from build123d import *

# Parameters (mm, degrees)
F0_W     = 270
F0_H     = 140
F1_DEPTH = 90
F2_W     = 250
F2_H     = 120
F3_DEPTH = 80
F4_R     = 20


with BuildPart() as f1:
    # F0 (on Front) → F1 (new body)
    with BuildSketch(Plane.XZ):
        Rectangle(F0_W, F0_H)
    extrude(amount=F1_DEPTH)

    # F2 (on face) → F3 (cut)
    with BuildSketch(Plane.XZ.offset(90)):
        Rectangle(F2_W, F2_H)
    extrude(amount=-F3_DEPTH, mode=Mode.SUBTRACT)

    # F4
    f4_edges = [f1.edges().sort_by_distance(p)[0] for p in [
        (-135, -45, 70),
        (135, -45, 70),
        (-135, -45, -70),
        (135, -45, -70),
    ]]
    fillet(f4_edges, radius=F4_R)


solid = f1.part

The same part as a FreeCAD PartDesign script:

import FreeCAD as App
import Part
import Sketcher
Q = App.Units.Quantity


def edges_at(feature, points):
    """Names of the edges that pass closest to the given points."""
    edges = feature.Shape.Edges
    near = lambda p: min(range(len(edges)), key=lambda i: edges[i].distToShape(Part.Vertex(*p))[0])
    return sorted({f"Edge{near(p) + 1}" for p in points})

doc = App.newDocument("Part")
body = doc.addObject("PartDesign::Body", "Body")

# Sketch on XZ plane
sketch1 = body.newObject("Sketcher::SketchObject", "Sketch")
sketch1.AttachmentSupport = (doc.getObject("XZ_Plane"), [""])
sketch1.MapMode = "FlatFace"
sketch1.addGeometry(Part.LineSegment(App.Vector(-135, 70, 0), App.Vector(-135, -70, 0)), False)
sketch1.addGeometry(Part.LineSegment(App.Vector(-135, -70, 0), App.Vector(135, -70, 0)), False)
sketch1.addGeometry(Part.LineSegment(App.Vector(135, -70, 0), App.Vector(135, 70, 0)), False)
sketch1.addGeometry(Part.LineSegment(App.Vector(135, 70, 0), App.Vector(-135, 70, 0)), False)
sketch1.addConstraint(Sketcher.Constraint("Coincident", 0, 2, 1, 1))
sketch1.addConstraint(Sketcher.Constraint("Coincident", 1, 2, 2, 1))
sketch1.addConstraint(Sketcher.Constraint("Coincident", 2, 2, 3, 1))
sketch1.addConstraint(Sketcher.Constraint("Coincident", 3, 2, 0, 1))
sketch1.addConstraint(Sketcher.Constraint("Vertical", 0))
sketch1.addConstraint(Sketcher.Constraint("Horizontal", 1))
sketch1.addConstraint(Sketcher.Constraint("Vertical", 2))
sketch1.addConstraint(Sketcher.Constraint("Horizontal", 3))
sketch1.addConstraint(Sketcher.Constraint("Symmetric", 0, 2, 2, 2, -1, 1))
sketch1.addConstraint(Sketcher.Constraint("DistanceX", 1, 1, 1, 2, Q("270 mm")))
sketch1.addConstraint(Sketcher.Constraint("DistanceY", 0, 2, 0, 1, Q("140 mm")))
pad1 = body.newObject("PartDesign::Pad", "Pad")
pad1.Profile = sketch1
pad1.Length = 90

# Sketch on XZ plane
sketch2 = body.newObject("Sketcher::SketchObject", "Sketch001")
sketch2.AttachmentSupport = (doc.getObject("XZ_Plane"), [""])
sketch2.MapMode = "FlatFace"
sketch2.AttachmentOffset = App.Placement(App.Vector(0, 0, 90), App.Rotation())
sketch2.addGeometry(Part.LineSegment(App.Vector(-125, 60, 0), App.Vector(-125, -60, 0)), False)
sketch2.addGeometry(Part.LineSegment(App.Vector(-125, -60, 0), App.Vector(125, -60, 0)), False)
sketch2.addGeometry(Part.LineSegment(App.Vector(125, -60, 0), App.Vector(125, 60, 0)), False)
sketch2.addGeometry(Part.LineSegment(App.Vector(125, 60, 0), App.Vector(-125, 60, 0)), False)
sketch2.addConstraint(Sketcher.Constraint("Coincident", 0, 2, 1, 1))
sketch2.addConstraint(Sketcher.Constraint("Coincident", 1, 2, 2, 1))
sketch2.addConstraint(Sketcher.Constraint("Coincident", 2, 2, 3, 1))
sketch2.addConstraint(Sketcher.Constraint("Coincident", 3, 2, 0, 1))
sketch2.addConstraint(Sketcher.Constraint("Vertical", 0))
sketch2.addConstraint(Sketcher.Constraint("Horizontal", 1))
sketch2.addConstraint(Sketcher.Constraint("Vertical", 2))
sketch2.addConstraint(Sketcher.Constraint("Horizontal", 3))
sketch2.addConstraint(Sketcher.Constraint("Symmetric", 0, 2, 2, 2, -1, 1))
sketch2.addConstraint(Sketcher.Constraint("DistanceX", 1, 1, 1, 2, Q("250 mm")))
sketch2.addConstraint(Sketcher.Constraint("DistanceY", 0, 2, 0, 1, Q("120 mm")))
pocket1 = body.newObject("PartDesign::Pocket", "Pocket")
pocket1.Profile = sketch2
pocket1.Length = 80
doc.recompute()

fillet = body.newObject("PartDesign::Fillet", "Fillet")
fillet.Base = (pocket1, edges_at(pocket1, [
    (-135, -45, 70),
    (135, -45, 70),
    (-135, -45, -70),
    (135, -45, -70),
]))
fillet.Radius = 20

doc.recompute()
